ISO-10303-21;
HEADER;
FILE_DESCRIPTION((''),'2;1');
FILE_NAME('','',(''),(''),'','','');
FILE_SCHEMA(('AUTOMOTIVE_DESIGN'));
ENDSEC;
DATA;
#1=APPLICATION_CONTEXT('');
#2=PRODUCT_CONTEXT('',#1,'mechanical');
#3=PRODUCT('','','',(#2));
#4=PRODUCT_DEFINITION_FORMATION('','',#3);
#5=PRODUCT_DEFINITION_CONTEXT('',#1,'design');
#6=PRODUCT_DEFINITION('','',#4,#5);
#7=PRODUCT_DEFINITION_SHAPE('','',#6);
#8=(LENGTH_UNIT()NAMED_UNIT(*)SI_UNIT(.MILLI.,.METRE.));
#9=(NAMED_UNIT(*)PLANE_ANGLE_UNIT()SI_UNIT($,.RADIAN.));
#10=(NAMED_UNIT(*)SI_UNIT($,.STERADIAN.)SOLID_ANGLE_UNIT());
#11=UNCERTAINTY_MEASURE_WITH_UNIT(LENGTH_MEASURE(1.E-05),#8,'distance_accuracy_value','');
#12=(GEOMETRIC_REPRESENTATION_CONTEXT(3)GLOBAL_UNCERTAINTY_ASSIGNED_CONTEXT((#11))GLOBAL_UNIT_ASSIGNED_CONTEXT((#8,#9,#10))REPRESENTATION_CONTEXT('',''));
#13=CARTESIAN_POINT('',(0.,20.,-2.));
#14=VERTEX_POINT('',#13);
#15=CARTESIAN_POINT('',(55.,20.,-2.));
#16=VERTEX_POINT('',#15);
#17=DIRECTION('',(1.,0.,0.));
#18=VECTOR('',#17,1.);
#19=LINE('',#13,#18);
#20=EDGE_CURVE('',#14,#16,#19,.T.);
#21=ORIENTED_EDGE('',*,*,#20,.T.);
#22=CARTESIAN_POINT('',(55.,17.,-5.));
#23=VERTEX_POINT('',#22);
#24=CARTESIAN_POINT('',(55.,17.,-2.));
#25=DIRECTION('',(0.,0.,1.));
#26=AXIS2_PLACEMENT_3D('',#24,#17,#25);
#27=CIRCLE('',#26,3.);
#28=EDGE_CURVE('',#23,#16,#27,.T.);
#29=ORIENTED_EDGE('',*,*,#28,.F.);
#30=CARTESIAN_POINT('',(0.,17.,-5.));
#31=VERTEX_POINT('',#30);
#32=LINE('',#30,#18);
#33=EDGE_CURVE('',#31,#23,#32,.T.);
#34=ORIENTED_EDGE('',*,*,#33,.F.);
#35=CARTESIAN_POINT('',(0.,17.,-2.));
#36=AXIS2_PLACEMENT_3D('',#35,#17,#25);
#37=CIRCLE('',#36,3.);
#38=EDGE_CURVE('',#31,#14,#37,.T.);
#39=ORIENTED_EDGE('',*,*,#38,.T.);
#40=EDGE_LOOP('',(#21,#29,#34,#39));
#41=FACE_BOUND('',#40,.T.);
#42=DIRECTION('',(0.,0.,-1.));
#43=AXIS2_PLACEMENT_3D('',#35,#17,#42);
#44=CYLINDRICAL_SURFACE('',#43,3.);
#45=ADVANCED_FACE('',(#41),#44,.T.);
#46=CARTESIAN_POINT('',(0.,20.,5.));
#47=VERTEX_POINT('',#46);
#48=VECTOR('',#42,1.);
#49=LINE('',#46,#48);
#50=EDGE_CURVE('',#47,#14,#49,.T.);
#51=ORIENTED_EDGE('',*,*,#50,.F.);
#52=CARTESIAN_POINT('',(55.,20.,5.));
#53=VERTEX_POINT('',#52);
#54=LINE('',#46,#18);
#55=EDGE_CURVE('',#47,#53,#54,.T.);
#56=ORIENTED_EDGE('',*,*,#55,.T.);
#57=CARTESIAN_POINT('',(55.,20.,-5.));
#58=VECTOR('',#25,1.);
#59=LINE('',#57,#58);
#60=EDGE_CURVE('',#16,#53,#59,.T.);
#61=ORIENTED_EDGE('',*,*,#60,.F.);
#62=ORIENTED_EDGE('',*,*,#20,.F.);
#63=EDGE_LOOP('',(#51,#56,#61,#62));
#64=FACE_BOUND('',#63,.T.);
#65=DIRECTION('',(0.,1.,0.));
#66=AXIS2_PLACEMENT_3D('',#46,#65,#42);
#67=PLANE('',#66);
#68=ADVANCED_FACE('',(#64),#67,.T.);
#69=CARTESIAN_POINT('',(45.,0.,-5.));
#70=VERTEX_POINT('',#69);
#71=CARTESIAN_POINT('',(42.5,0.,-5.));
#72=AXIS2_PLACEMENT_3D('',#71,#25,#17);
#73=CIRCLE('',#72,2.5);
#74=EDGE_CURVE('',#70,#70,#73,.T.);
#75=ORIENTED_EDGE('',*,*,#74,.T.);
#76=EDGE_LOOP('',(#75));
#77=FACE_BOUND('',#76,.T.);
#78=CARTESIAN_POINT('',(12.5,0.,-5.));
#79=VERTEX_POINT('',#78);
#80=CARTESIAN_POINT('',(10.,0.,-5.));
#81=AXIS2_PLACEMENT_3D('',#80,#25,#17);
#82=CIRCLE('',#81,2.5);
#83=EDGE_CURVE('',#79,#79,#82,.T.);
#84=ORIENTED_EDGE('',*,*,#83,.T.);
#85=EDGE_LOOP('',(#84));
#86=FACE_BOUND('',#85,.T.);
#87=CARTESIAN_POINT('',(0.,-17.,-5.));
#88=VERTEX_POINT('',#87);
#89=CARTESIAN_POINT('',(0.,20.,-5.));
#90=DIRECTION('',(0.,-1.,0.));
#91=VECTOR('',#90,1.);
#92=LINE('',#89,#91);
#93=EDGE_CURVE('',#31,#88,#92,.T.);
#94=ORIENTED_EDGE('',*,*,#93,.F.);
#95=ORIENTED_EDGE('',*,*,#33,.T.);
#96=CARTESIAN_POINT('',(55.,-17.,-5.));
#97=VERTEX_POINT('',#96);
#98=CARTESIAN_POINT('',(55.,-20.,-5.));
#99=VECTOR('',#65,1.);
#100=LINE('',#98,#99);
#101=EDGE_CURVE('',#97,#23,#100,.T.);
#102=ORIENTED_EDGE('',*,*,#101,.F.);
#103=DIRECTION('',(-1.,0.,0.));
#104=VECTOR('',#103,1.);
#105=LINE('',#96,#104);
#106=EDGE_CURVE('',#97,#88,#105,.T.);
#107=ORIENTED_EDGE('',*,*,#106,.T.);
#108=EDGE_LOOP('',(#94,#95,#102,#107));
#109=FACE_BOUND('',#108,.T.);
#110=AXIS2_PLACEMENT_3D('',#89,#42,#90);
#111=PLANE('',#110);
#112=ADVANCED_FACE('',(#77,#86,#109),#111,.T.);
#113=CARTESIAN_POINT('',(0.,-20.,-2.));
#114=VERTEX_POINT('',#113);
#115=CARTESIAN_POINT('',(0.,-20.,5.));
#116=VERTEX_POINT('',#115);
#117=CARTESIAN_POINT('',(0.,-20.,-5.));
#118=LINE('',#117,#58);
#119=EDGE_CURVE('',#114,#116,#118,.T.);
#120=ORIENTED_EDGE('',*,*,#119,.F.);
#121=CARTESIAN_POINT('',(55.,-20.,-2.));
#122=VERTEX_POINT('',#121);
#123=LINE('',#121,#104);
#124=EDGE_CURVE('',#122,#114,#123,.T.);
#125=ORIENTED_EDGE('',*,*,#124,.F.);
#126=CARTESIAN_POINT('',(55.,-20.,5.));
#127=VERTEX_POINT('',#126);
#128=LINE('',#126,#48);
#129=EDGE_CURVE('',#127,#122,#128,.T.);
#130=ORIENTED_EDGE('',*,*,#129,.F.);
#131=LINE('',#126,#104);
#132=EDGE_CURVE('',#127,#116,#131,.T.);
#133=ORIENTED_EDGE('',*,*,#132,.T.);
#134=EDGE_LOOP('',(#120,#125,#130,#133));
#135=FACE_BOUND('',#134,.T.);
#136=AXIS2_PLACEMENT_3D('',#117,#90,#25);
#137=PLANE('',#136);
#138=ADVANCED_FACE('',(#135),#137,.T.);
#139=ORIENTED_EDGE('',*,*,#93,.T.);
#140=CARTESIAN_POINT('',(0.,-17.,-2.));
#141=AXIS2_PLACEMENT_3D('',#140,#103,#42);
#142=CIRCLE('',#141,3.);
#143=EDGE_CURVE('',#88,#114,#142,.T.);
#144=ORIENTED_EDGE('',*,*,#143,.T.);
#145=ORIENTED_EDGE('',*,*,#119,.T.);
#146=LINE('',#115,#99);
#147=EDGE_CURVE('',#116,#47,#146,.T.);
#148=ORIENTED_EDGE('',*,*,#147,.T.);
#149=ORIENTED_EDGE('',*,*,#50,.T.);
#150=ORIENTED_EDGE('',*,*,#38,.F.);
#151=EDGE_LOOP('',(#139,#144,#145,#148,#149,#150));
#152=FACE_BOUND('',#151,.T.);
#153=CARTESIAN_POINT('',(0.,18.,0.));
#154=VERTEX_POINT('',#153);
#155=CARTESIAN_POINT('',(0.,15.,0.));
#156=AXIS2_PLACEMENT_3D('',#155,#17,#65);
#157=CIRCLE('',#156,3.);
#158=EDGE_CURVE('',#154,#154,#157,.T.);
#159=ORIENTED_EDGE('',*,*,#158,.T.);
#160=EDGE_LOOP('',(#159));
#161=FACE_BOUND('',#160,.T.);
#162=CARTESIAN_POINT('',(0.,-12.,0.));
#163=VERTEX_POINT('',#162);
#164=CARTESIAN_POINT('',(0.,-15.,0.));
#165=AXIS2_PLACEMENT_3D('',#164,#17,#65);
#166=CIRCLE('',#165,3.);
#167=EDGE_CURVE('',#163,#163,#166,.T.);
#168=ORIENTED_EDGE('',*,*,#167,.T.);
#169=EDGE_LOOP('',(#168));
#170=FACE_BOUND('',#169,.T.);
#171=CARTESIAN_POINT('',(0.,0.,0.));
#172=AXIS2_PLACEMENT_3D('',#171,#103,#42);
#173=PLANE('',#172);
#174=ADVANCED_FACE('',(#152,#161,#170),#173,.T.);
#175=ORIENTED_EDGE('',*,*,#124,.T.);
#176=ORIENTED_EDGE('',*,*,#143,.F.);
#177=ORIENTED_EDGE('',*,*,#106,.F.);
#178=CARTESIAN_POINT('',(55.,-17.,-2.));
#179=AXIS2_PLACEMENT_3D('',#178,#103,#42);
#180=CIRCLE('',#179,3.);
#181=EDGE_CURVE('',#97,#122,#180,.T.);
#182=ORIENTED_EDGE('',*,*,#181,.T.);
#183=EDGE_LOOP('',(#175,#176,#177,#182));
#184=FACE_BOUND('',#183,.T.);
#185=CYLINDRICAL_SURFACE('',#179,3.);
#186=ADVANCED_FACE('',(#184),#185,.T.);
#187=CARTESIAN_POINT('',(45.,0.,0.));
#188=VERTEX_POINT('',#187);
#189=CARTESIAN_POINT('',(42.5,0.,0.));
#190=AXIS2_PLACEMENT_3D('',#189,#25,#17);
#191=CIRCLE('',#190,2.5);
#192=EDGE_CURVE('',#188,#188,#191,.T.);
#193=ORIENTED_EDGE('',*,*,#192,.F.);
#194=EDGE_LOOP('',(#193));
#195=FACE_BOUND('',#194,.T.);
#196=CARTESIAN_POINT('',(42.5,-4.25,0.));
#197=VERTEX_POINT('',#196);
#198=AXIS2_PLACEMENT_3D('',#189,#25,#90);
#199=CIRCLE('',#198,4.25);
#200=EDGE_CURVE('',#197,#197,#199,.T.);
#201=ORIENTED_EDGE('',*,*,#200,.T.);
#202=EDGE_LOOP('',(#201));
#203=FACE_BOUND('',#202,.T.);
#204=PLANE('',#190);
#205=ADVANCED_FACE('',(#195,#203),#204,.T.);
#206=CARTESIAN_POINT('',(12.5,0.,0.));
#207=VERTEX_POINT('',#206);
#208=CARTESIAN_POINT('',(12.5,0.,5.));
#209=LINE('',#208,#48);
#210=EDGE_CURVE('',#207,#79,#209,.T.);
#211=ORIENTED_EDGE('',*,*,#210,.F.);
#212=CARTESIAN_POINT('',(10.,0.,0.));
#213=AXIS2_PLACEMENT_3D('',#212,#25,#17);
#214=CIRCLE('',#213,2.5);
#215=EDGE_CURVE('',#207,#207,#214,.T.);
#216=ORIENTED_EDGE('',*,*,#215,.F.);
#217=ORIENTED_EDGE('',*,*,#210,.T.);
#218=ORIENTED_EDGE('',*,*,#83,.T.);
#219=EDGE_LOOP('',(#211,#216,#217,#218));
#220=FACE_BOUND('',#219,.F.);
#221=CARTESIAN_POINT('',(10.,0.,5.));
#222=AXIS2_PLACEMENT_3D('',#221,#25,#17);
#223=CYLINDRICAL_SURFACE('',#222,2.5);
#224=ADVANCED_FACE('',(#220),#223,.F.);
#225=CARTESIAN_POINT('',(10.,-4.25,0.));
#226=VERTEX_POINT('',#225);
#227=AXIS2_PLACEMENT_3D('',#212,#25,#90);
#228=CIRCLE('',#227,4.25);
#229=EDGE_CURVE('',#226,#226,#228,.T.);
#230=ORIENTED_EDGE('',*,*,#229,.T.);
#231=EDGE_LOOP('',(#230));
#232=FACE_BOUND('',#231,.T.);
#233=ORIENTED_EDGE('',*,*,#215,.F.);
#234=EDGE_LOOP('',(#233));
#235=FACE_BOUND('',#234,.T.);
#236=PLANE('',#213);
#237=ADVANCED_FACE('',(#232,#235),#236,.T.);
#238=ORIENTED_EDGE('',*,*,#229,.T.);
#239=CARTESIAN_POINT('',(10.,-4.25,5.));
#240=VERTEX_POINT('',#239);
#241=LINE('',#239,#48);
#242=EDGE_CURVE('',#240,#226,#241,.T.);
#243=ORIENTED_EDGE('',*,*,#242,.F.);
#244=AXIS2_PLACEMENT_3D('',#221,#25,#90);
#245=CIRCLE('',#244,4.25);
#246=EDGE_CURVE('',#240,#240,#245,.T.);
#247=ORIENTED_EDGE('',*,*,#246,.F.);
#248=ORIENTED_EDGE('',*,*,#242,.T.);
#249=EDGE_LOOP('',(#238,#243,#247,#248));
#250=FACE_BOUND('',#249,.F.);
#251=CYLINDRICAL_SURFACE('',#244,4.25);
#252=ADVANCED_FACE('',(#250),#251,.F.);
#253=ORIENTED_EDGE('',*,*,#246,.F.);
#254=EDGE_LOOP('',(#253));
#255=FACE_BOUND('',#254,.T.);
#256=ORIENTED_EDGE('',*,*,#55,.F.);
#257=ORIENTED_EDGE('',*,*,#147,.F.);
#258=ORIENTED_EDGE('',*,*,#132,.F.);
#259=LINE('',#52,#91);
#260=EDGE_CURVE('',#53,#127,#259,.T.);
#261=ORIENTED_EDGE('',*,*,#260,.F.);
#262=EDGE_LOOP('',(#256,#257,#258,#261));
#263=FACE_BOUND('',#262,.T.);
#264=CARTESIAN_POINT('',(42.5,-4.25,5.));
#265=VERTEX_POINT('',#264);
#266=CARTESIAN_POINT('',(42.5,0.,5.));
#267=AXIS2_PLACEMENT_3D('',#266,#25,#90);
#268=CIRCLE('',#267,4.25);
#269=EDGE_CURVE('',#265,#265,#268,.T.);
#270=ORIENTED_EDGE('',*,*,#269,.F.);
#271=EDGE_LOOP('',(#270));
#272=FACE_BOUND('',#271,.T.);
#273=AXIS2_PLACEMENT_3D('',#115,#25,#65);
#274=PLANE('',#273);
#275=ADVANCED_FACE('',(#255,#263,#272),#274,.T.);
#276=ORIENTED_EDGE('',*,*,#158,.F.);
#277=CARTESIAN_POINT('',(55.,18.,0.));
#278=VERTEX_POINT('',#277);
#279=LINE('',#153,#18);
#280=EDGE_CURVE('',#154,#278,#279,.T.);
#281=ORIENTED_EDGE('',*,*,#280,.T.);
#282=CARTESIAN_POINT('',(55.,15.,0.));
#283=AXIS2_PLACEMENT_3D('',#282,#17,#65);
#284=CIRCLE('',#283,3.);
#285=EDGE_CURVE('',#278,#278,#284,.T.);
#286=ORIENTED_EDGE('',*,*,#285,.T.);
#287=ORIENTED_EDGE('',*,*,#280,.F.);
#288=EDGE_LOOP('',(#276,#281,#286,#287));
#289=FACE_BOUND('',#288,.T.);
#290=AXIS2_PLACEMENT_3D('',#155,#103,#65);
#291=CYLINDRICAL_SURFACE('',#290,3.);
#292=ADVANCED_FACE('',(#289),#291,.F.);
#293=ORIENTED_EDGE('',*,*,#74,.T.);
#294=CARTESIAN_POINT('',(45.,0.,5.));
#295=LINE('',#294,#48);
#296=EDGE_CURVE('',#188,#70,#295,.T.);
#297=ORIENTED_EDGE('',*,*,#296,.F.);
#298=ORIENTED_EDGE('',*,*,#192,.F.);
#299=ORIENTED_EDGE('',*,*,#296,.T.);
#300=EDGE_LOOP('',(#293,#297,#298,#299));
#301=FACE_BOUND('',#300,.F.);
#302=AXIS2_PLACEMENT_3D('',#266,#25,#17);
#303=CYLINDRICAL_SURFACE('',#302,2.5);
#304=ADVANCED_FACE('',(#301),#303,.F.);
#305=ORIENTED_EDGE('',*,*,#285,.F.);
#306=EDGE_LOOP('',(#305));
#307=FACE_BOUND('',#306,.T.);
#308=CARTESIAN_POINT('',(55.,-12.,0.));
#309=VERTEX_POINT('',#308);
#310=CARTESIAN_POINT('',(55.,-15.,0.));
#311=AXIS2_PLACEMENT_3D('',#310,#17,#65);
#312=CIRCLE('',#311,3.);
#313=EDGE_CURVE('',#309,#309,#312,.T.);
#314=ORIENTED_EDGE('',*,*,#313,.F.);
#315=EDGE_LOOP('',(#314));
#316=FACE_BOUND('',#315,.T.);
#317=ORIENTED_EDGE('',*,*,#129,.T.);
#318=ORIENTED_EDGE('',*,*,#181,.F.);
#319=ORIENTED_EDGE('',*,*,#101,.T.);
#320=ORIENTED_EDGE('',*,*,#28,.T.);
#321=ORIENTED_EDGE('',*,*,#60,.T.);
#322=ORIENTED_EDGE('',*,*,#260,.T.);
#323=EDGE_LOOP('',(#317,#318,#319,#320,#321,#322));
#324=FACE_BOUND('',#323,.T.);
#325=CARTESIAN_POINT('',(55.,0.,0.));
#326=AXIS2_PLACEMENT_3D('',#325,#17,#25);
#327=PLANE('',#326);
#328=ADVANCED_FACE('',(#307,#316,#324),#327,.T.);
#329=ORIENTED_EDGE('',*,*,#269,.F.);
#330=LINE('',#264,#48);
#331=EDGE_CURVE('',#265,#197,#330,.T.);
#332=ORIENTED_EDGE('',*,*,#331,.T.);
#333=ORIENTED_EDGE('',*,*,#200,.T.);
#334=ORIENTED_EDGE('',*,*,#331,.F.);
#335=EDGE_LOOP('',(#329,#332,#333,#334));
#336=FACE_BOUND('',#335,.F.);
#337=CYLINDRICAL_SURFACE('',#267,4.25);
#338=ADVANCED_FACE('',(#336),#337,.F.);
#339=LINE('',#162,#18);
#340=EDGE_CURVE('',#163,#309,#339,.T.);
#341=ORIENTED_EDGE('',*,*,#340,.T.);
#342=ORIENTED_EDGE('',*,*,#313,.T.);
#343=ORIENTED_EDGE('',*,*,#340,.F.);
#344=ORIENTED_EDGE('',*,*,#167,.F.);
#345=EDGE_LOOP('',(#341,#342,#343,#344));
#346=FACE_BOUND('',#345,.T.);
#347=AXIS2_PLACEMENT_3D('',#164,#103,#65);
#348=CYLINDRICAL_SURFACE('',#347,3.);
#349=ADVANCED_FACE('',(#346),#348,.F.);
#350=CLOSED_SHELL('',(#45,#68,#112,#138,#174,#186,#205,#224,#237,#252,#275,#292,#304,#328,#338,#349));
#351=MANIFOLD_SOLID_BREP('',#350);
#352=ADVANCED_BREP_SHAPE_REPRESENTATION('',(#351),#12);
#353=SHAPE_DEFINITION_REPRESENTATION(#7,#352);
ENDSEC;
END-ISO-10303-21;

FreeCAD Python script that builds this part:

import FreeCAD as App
import Part
import Sketcher
from FreeCAD import Vector


def edges_at(feature, points):
    """Names of the edges that pass closest to the given points."""
    edges = feature.Shape.Edges
    near = lambda p: min(range(len(edges)), key=lambda i: edges[i].distToShape(Part.Vertex(*p))[0])
    return sorted({f"Edge{near(p) + 1}" for p in points})


def add_polygon(sketch, points):
    """Adds a closed chain of lines whose ends are joined by coincident constraints."""
    first, n = sketch.GeometryCount, len(points)
    for a, b in zip(points, points[1:] + points[:1]):
        sketch.addGeometry(Part.LineSegment(App.Vector(*a, 0), App.Vector(*b, 0)), False)
    for i in range(n):
        sketch.addConstraint(Sketcher.Constraint("Coincident", first + i, 2, first + (i + 1) % n, 1))

doc = App.newDocument("Part")
body = doc.addObject("PartDesign::Body", "Body")

sketch1 = body.newObject("Sketcher::SketchObject", "Sketch")
sketch1.AttachmentSupport = (doc.getObject("YZ_Plane"), [""])
sketch1.MapMode = "FlatFace"
add_polygon(sketch1, [(-20, -5), (20, -5), (20, 5), (-20, 5)])
sketch1.addGeometry(Part.Circle(Vector(-15, 0, 0), Vector(0, 0, 1), 3), False)
sketch1.addGeometry(Part.Circle(Vector(15, 0, 0), Vector(0, 0, 1), 3), False)
sketch1.addConstraint([
    Sketcher.Constraint("Horizontal", 0),
    Sketcher.Constraint("Vertical", 1),
    Sketcher.Constraint("Horizontal", 2),
    Sketcher.Constraint("Vertical", 3),
    Sketcher.Constraint("Equal", 4, 5),
    Sketcher.Constraint("Symmetric", 4, 3, 5, 3, -1, 1),
    Sketcher.Constraint("Symmetric", 0, 2, 2, 2, -1, 1),
    Sketcher.Constraint("PointOnObject", 4, 3, -1),
    Sketcher.Constraint("Diameter", 4, 6.0),
    Sketcher.Constraint("DistanceX", -1, 1, 0, 2, 20.0),
    Sketcher.Constraint("DistanceY", 1, 1, 1, 2, 10.0),
    Sketcher.Constraint("DistanceX", 4, 3, -1, 1, 15.0),
])
pad1 = body.newObject("PartDesign::Pad", "Pad")
pad1.Profile = sketch1
pad1.Length = 50

sketch2 = body.newObject("Sketcher::SketchObject", "Sketch001")
sketch2.AttachmentSupport = (doc.getObject("XY_Plane"), [""])
sketch2.MapMode = "FlatFace"
sketch2.AttachmentOffset = App.Placement(Vector(0, 0, 5), App.Rotation())
sketch2.addGeometry([
    Part.Circle(Vector(42.5, 0, 0), Vector(0, 0, 1), 2.5),
    Part.Circle(Vector(10, 0, 0), Vector(0, 0, 1), 2.5),
], False)
sketch2.addConstraint([
    Sketcher.Constraint("Equal", 0, 1),
    Sketcher.Constraint("PointOnObject", 0, 3, -1),
    Sketcher.Constraint("PointOnObject", 1, 3, -1),
    Sketcher.Constraint("Diameter", 0, 5.0),
    Sketcher.Constraint("DistanceX", -1, 1, 1, 3, 10.0),
    Sketcher.Constraint("DistanceX", -1, 1, 0, 3, 42.5),
])
pocket1 = body.newObject("PartDesign::Pocket", "Pocket")
pocket1.Profile = sketch2
pocket1.Type = "UpToFirst"

sketch3 = body.newObject("Sketcher::SketchObject", "Sketch002")
sketch3.AttachmentSupport = (doc.getObject("YZ_Plane"), [""])
sketch3.MapMode = "FlatFace"
sketch3.AttachmentOffset = App.Placement(Vector(0, 0, 50), App.Rotation())
add_polygon(sketch3, [(-20, 5), (-20, -5), (20, -5), (20, 5)])
sketch3.addGeometry(Part.Circle(Vector(-15, 0, 0), Vector(0, 0, 1), 3), False)
sketch3.addGeometry(Part.Circle(Vector(15, 0, 0), Vector(0, 0, 1), 3), False)
sketch3.addConstraint([
    Sketcher.Constraint("Vertical", 0),
    Sketcher.Constraint("Horizontal", 1),
    Sketcher.Constraint("Vertical", 2),
    Sketcher.Constraint("Horizontal", 3),
    Sketcher.Constraint("Equal", 4, 5),
    Sketcher.Constraint("Symmetric", 4, 3, 5, 3, -1, 1),
    Sketcher.Constraint("Symmetric", 0, 2, 2, 2, -1, 1),
    Sketcher.Constraint("PointOnObject", 4, 3, -1),
    Sketcher.Constraint("Diameter", 4, 6.0),
    Sketcher.Constraint("DistanceX", 1, 1, 1, 2, 40.0),
    Sketcher.Constraint("DistanceY", 0, 2, 0, 1, 10.0),
    Sketcher.Constraint("DistanceX", 4, 3, -1, 1, 15.0),
])
pad2 = body.newObject("PartDesign::Pad", "Pad001")
pad2.Profile = sketch3
pad2.Length = 5
doc.recompute()

fillet = body.newObject("PartDesign::Fillet", "Fillet")
fillet.Base = (pad2, edges_at(pad2, [(27.5, -20, -5), (27.5, 20, -5)]))
fillet.Radius = 3

sketch4 = body.newObject("Sketcher::SketchObject", "Sketch003")
sketch4.AttachmentSupport = (doc.getObject("XY_Plane"), [""])
sketch4.MapMode = "FlatFace"
sketch4.AttachmentOffset = App.Placement(Vector(0, 0, 5), App.Rotation())
sketch4.addGeometry([
    Part.Circle(Vector(10, 0, 0), Vector(0, 0, 1), 4.2),
    Part.Circle(Vector(42.5, 0, 0), Vector(0, 0, 1), 4.2),
], False)
sketch4.addConstraint([
    Sketcher.Constraint("Equal", 0, 1),
    Sketcher.Constraint("PointOnObject", 0, 3, -1),
    Sketcher.Constraint("PointOnObject", 1, 3, -1),
    Sketcher.Constraint("Diameter", 0, 8.5),
    Sketcher.Constraint("DistanceX", -1, 1, 0, 3, 10.0),
    Sketcher.Constraint("DistanceX", -1, 1, 1, 3, 42.5),
])
pocket2 = body.newObject("PartDesign::Pocket", "Pocket001")
pocket2.Profile = sketch4
pocket2.Length = 5

doc.recompute()
